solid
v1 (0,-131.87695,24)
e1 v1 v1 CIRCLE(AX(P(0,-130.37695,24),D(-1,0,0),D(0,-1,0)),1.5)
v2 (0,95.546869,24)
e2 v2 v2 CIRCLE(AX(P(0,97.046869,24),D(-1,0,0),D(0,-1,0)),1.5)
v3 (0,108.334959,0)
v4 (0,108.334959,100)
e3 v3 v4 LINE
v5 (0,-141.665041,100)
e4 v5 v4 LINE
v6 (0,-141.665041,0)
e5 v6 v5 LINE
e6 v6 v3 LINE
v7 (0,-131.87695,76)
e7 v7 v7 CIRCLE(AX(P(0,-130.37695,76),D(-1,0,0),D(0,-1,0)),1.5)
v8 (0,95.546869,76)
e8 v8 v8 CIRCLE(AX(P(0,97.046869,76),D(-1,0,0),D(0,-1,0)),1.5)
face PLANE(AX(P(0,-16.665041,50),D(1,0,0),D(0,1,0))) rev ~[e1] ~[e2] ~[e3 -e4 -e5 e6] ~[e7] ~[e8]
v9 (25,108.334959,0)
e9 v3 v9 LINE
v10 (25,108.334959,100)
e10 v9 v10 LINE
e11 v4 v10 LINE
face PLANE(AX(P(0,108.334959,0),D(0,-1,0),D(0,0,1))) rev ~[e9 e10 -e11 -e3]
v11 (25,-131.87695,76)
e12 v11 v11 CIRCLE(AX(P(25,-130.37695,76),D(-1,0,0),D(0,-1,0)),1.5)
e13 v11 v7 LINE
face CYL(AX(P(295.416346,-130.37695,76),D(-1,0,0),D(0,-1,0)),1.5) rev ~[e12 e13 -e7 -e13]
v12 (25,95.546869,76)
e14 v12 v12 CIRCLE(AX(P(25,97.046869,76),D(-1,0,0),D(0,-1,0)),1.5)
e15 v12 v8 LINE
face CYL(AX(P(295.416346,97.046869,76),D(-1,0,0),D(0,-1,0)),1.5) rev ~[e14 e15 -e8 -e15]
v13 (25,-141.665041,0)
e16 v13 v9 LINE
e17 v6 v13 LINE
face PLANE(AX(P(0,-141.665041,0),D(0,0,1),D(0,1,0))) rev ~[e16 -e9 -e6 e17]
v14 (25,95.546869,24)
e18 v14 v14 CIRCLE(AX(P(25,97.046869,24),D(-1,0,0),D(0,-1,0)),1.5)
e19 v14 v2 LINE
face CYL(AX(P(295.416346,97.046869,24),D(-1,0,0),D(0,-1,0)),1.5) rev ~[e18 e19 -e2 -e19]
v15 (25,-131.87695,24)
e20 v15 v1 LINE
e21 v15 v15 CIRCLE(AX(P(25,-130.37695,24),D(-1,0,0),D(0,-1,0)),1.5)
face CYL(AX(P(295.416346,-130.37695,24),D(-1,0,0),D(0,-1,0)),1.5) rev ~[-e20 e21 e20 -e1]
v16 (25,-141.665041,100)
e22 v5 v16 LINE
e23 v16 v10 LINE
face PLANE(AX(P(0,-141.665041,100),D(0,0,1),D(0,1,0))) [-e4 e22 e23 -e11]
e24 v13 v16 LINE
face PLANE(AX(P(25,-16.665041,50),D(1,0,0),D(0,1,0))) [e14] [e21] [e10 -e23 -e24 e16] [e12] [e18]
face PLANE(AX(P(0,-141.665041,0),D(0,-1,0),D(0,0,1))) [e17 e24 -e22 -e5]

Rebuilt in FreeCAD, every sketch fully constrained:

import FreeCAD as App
import Part
import Sketcher

V = App.Vector
Q = App.Units.Quantity

doc = App.newDocument("Part")
body = doc.addObject("PartDesign::Body", "Body")

# Sketch on YZ plane
sketch1 = doc.addObject("Sketcher::SketchObject", "Sketch")
body.addObject(sketch1)
sketch1.AttachmentSupport = (doc.YZ_Plane, [""])
sketch1.MapMode = "FlatFace"
sketch1.addGeometry([
    Part.LineSegment(V(-142, 100, 0), V(-142, 0, 0)),
    Part.LineSegment(V(-142, 0, 0), V(108, 0, 0)),
    Part.LineSegment(V(108, 0, 0), V(108, 100, 0)),
    Part.LineSegment(V(108, 100, 0), V(-142, 100, 0)),
], False)
sketch1.addConstraint([
    Sketcher.Constraint("Coincident", 0, 2, 1, 1),
    Sketcher.Constraint("Coincident", 1, 2, 2, 1),
    Sketcher.Constraint("Coincident", 2, 2, 3, 1),
    Sketcher.Constraint("Coincident", 3, 2, 0, 1),
    Sketcher.Constraint("Vertical", 0),
    Sketcher.Constraint("Horizontal", 1),
    Sketcher.Constraint("Vertical", 2),
    Sketcher.Constraint("Horizontal", 3),
    Sketcher.Constraint("PointOnObject", 0, 2, -1),
    Sketcher.Constraint("DistanceX", 1, 1, 1, 2, Q("250 mm")),
    Sketcher.Constraint("DistanceY", 0, 2, 0, 1, Q("100 mm")),
    Sketcher.Constraint("DistanceX", 0, 2, -1, 1, Q("141.665041 mm")),
])
pad1 = doc.addObject("PartDesign::Pad", "Pad")
body.addObject(pad1)
pad1.Profile = sketch1
pad1.Length = 25

# Sketch on YZ plane
sketch2 = doc.addObject("Sketcher::SketchObject", "Sketch001")
body.addObject(sketch2)
sketch2.AttachmentSupport = (doc.YZ_Plane, [""])
sketch2.MapMode = "FlatFace"
sketch2.AttachmentOffset = App.Placement(V(0, 0, 25), App.Rotation())
sketch2.addGeometry([
    Part.Circle(V(-130.4, 76, 0), V(0, 0, 1), 1.5),
    Part.Circle(V(-130.4, 24, 0), V(0, 0, 1), 1.5),
    Part.Circle(V(97, 76, 0), V(0, 0, 1), 1.5),
    Part.Circle(V(97, 24, 0), V(0, 0, 1), 1.5),
], False)
sketch2.addConstraint([
    Sketcher.Constraint("Equal", 0, 1),
    Sketcher.Constraint("Equal", 1, 2),
    Sketcher.Constraint("Equal", 2, 3),
    Sketcher.Constraint("Horizontal", 0, 3, 2, 3),
    Sketcher.Constraint("Horizontal", 1, 3, 3, 3),
    Sketcher.Constraint("Vertical", 0, 3, 1, 3),
    Sketcher.Constraint("Vertical", 2, 3, 3, 3),
    Sketcher.Constraint("Diameter", 0, Q("3 mm")),
    Sketcher.Constraint("DistanceY", -1, 1, 0, 3, Q("76 mm")),
    Sketcher.Constraint("DistanceY", -1, 1, 1, 3, Q("24 mm")),
    Sketcher.Constraint("DistanceX", 0, 3, -1, 1, Q("130.37695 mm")),
    Sketcher.Constraint("DistanceX", -1, 1, 2, 3, Q("97.046869 mm")),
])
doc.recompute()
hole = doc.addObject("PartDesign::Hole", "Hole")
body.addObject(hole)
hole.Profile = sketch2
hole.ThreadType = "None"
hole.Diameter = 3
hole.DepthType = "ThroughAll"

doc.recompute()
